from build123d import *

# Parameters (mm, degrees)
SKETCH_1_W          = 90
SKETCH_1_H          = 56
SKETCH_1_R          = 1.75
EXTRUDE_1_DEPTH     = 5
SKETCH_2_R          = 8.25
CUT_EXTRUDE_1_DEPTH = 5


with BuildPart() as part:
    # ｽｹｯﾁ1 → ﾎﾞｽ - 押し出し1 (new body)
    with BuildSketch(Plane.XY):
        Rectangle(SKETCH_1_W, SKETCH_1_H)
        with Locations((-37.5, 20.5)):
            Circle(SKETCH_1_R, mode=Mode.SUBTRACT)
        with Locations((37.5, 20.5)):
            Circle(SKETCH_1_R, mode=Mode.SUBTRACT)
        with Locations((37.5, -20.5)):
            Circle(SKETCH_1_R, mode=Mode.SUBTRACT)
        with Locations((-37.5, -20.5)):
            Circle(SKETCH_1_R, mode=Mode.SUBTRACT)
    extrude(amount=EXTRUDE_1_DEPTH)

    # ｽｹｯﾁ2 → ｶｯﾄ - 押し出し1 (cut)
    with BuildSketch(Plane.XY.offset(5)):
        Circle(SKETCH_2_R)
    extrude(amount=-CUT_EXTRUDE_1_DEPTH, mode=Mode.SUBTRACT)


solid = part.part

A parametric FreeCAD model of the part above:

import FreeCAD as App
import Part
import Sketcher
from FreeCAD import Vector
Q = App.Units.Quantity


def add_polygon(sketch, points):
    """Adds a closed chain of lines whose ends are joined by coincident constraints."""
    first, n = sketch.GeometryCount, len(points)
    for a, b in zip(points, points[1:] + points[:1]):
        sketch.addGeometry(Part.LineSegment(App.Vector(*a, 0), App.Vector(*b, 0)), False)
    for i in range(n):
        sketch.addConstraint(Sketcher.Constraint("Coincident", first + i, 2, first + (i + 1) % n, 1))

doc = App.newDocument("Part")
params = doc.addObject("Spreadsheet::Sheet", "Params")
for row, (alias, value) in enumerate([
    ("sketch1_diameter", "3.5 mm"),
    ("sketch1_width", "90 mm"),
    ("sketch1_height", "56 mm"),
    ("pad1_length", "5 mm"),
    ("sketch2_diameter", "16.5 mm"),
    ("pocket1_length", "5 mm"),
], start=1):
    params.set(f"A{row}", alias)
    params.set(f"B{row}", "=" + value)
    params.setAlias(f"B{row}", alias)

body = doc.addObject("PartDesign::Body", "Body")

# Sketch on XY plane
sketch1 = body.newObject("Sketcher::SketchObject", "Sketch")
sketch1.AttachmentSupport = (doc.getObject("XY_Plane"), [""])
sketch1.MapMode = "FlatFace"
add_polygon(sketch1, [(-45, 28), (-45, -28), (45, -28), (45, 28)])  # lines 0-3
sketch1.addGeometry(Part.Circle(Vector(-37.5, -20.5, 0), Vector(0, 0, 1), 1.8), False)  # 4
sketch1.addGeometry(Part.Circle(Vector(37.5, -20.5, 0), Vector(0, 0, 1), 1.8), False)  # 5
sketch1.addGeometry(Part.Circle(Vector(-37.5, 20.5, 0), Vector(0, 0, 1), 1.8), False)  # 6
sketch1.addGeometry(Part.Circle(Vector(37.5, 20.5, 0), Vector(0, 0, 1), 1.8), False)  # 7
sketch1.addConstraint(Sketcher.Constraint("Vertical", 0))
sketch1.addConstraint(Sketcher.Constraint("Horizontal", 1))
sketch1.addConstraint(Sketcher.Constraint("Vertical", 2))
sketch1.addConstraint(Sketcher.Constraint("Horizontal", 3))
sketch1.addConstraint(Sketcher.Constraint("Equal", 4, 5))
sketch1.addConstraint(Sketcher.Constraint("Equal", 5, 6))
sketch1.addConstraint(Sketcher.Constraint("Equal", 6, 7))
sketch1.addConstraint(Sketcher.Constraint("Symmetric", 5, 3, 6, 3, -1, 1))
sketch1.addConstraint(Sketcher.Constraint("Symmetric", 4, 3, 7, 3, -1, 1))
sketch1.addConstraint(Sketcher.Constraint("Symmetric", 0, 2, 2, 2, -1, 1))
sketch1.addConstraint(Sketcher.Constraint("Symmetric", 4, 3, 5, 3, -2))
sketch1.addConstraint(Sketcher.Constraint("Diameter", 4, Q("3.5 mm")))
sketch1.addConstraint(Sketcher.Constraint("DistanceX", 1, 1, 1, 2, Q("90 mm")))
sketch1.addConstraint(Sketcher.Constraint("DistanceY", 0, 2, 0, 1, Q("56 mm")))
sketch1.addConstraint(Sketcher.Constraint("DistanceX", 4, 3, 5, 3, Q("75 mm")))
sketch1.addConstraint(Sketcher.Constraint("DistanceY", 4, 3, 6, 3, Q("41 mm")))
sketch1.setExpression("Constraints[15]", "Params.sketch1_diameter")
sketch1.setExpression("Constraints[16]", "Params.sketch1_width")
sketch1.setExpression("Constraints[17]", "Params.sketch1_height")
pad1 = body.newObject("PartDesign::Pad", "Pad")
pad1.Profile = sketch1
pad1.setExpression("Length", "Params.pad1_length")

# Sketch on XY plane
sketch2 = body.newObject("Sketcher::SketchObject", "Sketch001")
sketch2.AttachmentSupport = (doc.getObject("XY_Plane"), [""])
sketch2.MapMode = "FlatFace"
sketch2.AttachmentOffset = App.Placement(Vector(0, 0, 5), App.Rotation())
sketch2.addGeometry(Part.Circle(Vector(0, 0, 0), Vector(0, 0, 1), 8), False)
sketch2.addConstraint(Sketcher.Constraint("Coincident", 0, 3, -1, 1))
sketch2.addConstraint(Sketcher.Constraint("Diameter", 0, Q("16.5 mm")))
sketch2.setExpression("Constraints[1]", "Params.sketch2_diameter")
pocket1 = body.newObject("PartDesign::Pocket", "Pocket")
pocket1.Profile = sketch2
pocket1.setExpression("Length", "Params.pocket1_length")

doc.recompute()
